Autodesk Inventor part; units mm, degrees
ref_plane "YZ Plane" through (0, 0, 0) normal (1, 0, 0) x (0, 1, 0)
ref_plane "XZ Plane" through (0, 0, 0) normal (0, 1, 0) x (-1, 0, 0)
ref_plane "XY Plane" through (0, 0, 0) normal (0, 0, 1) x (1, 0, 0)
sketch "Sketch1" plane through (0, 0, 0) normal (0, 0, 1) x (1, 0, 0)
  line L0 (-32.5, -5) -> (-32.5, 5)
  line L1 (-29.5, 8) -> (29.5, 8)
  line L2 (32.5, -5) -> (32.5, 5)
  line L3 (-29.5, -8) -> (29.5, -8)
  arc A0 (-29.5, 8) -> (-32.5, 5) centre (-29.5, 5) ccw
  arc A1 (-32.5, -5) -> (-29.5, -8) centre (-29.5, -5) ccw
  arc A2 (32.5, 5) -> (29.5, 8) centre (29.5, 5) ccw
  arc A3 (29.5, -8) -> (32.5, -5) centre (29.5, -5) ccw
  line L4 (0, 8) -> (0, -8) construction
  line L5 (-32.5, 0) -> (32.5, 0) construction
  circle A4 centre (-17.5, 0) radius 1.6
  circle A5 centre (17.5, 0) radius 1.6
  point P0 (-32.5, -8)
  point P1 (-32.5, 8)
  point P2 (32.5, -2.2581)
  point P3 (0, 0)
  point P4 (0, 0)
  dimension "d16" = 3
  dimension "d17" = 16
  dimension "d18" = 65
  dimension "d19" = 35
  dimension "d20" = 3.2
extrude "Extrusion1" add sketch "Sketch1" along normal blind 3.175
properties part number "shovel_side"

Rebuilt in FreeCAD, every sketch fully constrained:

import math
import FreeCAD as App
import Part
import Sketcher
Q = App.Units.Quantity

doc = App.newDocument("Part")
params = doc.addObject("Spreadsheet::Sheet", "Params")
for row, (alias, value) in enumerate([
    ("sketch1_radius", "3 mm"),
    ("sketch1_diameter", "3.2 mm"),
    ("sketch1_width", "59 mm"),
    ("pad1_length", "3.175 mm"),
], start=1):
    params.set(f"A{row}", alias)
    params.set(f"B{row}", "=" + value)
    params.setAlias(f"B{row}", alias)

body = doc.addObject("PartDesign::Body", "Body")

sketch1 = doc.addObject("Sketcher::SketchObject", "Sketch")
body.addObject(sketch1)
sketch1.AttachmentSupport = (doc.XY_Plane, [""])
sketch1.MapMode = "FlatFace"
sketch1.addGeometry(Part.LineSegment(App.Vector(-32.5, 5, 0), App.Vector(-32.5, -5, 0)), False)
sketch1.addGeometry(Part.ArcOfCircle(Part.Circle(App.Vector(-29.5, -5, 0), App.Vector(0, 0, 1), 3), math.radians(180), math.radians(270)), False)
sketch1.addGeometry(Part.LineSegment(App.Vector(-29.5, -8, 0), App.Vector(29.5, -8, 0)), False)
sketch1.addGeometry(Part.ArcOfCircle(Part.Circle(App.Vector(29.5, -5, 0), App.Vector(0, 0, 1), 3), math.radians(-90), math.radians(0)), False)
sketch1.addGeometry(Part.LineSegment(App.Vector(32.5, -5, 0), App.Vector(32.5, 5, 0)), False)
sketch1.addGeometry(Part.ArcOfCircle(Part.Circle(App.Vector(29.5, 5, 0), App.Vector(0, 0, 1), 3), math.radians(0), math.radians(90)), False)
sketch1.addGeometry(Part.LineSegment(App.Vector(29.5, 8, 0), App.Vector(-29.5, 8, 0)), False)
sketch1.addGeometry(Part.ArcOfCircle(Part.Circle(App.Vector(-29.5, 5, 0), App.Vector(0, 0, 1), 3), math.radians(90), math.radians(180)), False)
sketch1.addGeometry(Part.Circle(App.Vector(-17.5, 0, 0), App.Vector(0, 0, 1), 1.6), False)
sketch1.addGeometry(Part.Circle(App.Vector(17.5, 0, 0), App.Vector(0, 0, 1), 1.6), False)
sketch1.addConstraint(Sketcher.Constraint("Tangent", 0, 2, 1, 1))
sketch1.addConstraint(Sketcher.Constraint("Tangent", 1, 2, 2, 1))
sketch1.addConstraint(Sketcher.Constraint("Tangent", 2, 2, 3, 1))
sketch1.addConstraint(Sketcher.Constraint("Tangent", 3, 2, 4, 1))
sketch1.addConstraint(Sketcher.Constraint("Tangent", 4, 2, 5, 1))
sketch1.addConstraint(Sketcher.Constraint("Tangent", 5, 2, 6, 1))
sketch1.addConstraint(Sketcher.Constraint("Tangent", 6, 2, 7, 1))
sketch1.addConstraint(Sketcher.Constraint("Tangent", 7, 2, 0, 1))
sketch1.addConstraint(Sketcher.Constraint("Vertical", 0))
sketch1.addConstraint(Sketcher.Constraint("Horizontal", 2))
sketch1.addConstraint(Sketcher.Constraint("Vertical", 4))
sketch1.addConstraint(Sketcher.Constraint("Horizontal", 6))
sketch1.addConstraint(Sketcher.Constraint("Equal", 1, 3))
sketch1.addConstraint(Sketcher.Constraint("Equal", 3, 5))
sketch1.addConstraint(Sketcher.Constraint("Equal", 5, 7))
sketch1.addConstraint(Sketcher.Constraint("Equal", 8, 9))
sketch1.addConstraint(Sketcher.Constraint("Symmetric", 1, 3, 5, 3, -1, 1))
sketch1.addConstraint(Sketcher.Constraint("Symmetric", 8, 3, 9, 3, -1, 1))
sketch1.addConstraint(Sketcher.Constraint("PointOnObject", 8, 3, -1))
sketch1.addConstraint(Sketcher.Constraint("Radius", 1, Q("3 mm")))
sketch1.addConstraint(Sketcher.Constraint("Diameter", 8, Q("3.2 mm")))
sketch1.addConstraint(Sketcher.Constraint("DistanceX", 8, 3, 9, 3, Q("35 mm")))
sketch1.addConstraint(Sketcher.Constraint("DistanceY", 1, 2, 6, 2, Q("16 mm")))
sketch1.addConstraint(Sketcher.Constraint("DistanceX", 2, 1, 2, 2, Q("59 mm")))
sketch1.setExpression("Constraints[19]", "Params.sketch1_radius")
sketch1.setExpression("Constraints[20]", "Params.sketch1_diameter")
sketch1.setExpression("Constraints[23]", "Params.sketch1_width")
pad1 = doc.addObject("PartDesign::Pad", "Pad")
body.addObject(pad1)
pad1.Profile = sketch1
pad1.setExpression("Length", "Params.pad1_length")

doc.recompute()
